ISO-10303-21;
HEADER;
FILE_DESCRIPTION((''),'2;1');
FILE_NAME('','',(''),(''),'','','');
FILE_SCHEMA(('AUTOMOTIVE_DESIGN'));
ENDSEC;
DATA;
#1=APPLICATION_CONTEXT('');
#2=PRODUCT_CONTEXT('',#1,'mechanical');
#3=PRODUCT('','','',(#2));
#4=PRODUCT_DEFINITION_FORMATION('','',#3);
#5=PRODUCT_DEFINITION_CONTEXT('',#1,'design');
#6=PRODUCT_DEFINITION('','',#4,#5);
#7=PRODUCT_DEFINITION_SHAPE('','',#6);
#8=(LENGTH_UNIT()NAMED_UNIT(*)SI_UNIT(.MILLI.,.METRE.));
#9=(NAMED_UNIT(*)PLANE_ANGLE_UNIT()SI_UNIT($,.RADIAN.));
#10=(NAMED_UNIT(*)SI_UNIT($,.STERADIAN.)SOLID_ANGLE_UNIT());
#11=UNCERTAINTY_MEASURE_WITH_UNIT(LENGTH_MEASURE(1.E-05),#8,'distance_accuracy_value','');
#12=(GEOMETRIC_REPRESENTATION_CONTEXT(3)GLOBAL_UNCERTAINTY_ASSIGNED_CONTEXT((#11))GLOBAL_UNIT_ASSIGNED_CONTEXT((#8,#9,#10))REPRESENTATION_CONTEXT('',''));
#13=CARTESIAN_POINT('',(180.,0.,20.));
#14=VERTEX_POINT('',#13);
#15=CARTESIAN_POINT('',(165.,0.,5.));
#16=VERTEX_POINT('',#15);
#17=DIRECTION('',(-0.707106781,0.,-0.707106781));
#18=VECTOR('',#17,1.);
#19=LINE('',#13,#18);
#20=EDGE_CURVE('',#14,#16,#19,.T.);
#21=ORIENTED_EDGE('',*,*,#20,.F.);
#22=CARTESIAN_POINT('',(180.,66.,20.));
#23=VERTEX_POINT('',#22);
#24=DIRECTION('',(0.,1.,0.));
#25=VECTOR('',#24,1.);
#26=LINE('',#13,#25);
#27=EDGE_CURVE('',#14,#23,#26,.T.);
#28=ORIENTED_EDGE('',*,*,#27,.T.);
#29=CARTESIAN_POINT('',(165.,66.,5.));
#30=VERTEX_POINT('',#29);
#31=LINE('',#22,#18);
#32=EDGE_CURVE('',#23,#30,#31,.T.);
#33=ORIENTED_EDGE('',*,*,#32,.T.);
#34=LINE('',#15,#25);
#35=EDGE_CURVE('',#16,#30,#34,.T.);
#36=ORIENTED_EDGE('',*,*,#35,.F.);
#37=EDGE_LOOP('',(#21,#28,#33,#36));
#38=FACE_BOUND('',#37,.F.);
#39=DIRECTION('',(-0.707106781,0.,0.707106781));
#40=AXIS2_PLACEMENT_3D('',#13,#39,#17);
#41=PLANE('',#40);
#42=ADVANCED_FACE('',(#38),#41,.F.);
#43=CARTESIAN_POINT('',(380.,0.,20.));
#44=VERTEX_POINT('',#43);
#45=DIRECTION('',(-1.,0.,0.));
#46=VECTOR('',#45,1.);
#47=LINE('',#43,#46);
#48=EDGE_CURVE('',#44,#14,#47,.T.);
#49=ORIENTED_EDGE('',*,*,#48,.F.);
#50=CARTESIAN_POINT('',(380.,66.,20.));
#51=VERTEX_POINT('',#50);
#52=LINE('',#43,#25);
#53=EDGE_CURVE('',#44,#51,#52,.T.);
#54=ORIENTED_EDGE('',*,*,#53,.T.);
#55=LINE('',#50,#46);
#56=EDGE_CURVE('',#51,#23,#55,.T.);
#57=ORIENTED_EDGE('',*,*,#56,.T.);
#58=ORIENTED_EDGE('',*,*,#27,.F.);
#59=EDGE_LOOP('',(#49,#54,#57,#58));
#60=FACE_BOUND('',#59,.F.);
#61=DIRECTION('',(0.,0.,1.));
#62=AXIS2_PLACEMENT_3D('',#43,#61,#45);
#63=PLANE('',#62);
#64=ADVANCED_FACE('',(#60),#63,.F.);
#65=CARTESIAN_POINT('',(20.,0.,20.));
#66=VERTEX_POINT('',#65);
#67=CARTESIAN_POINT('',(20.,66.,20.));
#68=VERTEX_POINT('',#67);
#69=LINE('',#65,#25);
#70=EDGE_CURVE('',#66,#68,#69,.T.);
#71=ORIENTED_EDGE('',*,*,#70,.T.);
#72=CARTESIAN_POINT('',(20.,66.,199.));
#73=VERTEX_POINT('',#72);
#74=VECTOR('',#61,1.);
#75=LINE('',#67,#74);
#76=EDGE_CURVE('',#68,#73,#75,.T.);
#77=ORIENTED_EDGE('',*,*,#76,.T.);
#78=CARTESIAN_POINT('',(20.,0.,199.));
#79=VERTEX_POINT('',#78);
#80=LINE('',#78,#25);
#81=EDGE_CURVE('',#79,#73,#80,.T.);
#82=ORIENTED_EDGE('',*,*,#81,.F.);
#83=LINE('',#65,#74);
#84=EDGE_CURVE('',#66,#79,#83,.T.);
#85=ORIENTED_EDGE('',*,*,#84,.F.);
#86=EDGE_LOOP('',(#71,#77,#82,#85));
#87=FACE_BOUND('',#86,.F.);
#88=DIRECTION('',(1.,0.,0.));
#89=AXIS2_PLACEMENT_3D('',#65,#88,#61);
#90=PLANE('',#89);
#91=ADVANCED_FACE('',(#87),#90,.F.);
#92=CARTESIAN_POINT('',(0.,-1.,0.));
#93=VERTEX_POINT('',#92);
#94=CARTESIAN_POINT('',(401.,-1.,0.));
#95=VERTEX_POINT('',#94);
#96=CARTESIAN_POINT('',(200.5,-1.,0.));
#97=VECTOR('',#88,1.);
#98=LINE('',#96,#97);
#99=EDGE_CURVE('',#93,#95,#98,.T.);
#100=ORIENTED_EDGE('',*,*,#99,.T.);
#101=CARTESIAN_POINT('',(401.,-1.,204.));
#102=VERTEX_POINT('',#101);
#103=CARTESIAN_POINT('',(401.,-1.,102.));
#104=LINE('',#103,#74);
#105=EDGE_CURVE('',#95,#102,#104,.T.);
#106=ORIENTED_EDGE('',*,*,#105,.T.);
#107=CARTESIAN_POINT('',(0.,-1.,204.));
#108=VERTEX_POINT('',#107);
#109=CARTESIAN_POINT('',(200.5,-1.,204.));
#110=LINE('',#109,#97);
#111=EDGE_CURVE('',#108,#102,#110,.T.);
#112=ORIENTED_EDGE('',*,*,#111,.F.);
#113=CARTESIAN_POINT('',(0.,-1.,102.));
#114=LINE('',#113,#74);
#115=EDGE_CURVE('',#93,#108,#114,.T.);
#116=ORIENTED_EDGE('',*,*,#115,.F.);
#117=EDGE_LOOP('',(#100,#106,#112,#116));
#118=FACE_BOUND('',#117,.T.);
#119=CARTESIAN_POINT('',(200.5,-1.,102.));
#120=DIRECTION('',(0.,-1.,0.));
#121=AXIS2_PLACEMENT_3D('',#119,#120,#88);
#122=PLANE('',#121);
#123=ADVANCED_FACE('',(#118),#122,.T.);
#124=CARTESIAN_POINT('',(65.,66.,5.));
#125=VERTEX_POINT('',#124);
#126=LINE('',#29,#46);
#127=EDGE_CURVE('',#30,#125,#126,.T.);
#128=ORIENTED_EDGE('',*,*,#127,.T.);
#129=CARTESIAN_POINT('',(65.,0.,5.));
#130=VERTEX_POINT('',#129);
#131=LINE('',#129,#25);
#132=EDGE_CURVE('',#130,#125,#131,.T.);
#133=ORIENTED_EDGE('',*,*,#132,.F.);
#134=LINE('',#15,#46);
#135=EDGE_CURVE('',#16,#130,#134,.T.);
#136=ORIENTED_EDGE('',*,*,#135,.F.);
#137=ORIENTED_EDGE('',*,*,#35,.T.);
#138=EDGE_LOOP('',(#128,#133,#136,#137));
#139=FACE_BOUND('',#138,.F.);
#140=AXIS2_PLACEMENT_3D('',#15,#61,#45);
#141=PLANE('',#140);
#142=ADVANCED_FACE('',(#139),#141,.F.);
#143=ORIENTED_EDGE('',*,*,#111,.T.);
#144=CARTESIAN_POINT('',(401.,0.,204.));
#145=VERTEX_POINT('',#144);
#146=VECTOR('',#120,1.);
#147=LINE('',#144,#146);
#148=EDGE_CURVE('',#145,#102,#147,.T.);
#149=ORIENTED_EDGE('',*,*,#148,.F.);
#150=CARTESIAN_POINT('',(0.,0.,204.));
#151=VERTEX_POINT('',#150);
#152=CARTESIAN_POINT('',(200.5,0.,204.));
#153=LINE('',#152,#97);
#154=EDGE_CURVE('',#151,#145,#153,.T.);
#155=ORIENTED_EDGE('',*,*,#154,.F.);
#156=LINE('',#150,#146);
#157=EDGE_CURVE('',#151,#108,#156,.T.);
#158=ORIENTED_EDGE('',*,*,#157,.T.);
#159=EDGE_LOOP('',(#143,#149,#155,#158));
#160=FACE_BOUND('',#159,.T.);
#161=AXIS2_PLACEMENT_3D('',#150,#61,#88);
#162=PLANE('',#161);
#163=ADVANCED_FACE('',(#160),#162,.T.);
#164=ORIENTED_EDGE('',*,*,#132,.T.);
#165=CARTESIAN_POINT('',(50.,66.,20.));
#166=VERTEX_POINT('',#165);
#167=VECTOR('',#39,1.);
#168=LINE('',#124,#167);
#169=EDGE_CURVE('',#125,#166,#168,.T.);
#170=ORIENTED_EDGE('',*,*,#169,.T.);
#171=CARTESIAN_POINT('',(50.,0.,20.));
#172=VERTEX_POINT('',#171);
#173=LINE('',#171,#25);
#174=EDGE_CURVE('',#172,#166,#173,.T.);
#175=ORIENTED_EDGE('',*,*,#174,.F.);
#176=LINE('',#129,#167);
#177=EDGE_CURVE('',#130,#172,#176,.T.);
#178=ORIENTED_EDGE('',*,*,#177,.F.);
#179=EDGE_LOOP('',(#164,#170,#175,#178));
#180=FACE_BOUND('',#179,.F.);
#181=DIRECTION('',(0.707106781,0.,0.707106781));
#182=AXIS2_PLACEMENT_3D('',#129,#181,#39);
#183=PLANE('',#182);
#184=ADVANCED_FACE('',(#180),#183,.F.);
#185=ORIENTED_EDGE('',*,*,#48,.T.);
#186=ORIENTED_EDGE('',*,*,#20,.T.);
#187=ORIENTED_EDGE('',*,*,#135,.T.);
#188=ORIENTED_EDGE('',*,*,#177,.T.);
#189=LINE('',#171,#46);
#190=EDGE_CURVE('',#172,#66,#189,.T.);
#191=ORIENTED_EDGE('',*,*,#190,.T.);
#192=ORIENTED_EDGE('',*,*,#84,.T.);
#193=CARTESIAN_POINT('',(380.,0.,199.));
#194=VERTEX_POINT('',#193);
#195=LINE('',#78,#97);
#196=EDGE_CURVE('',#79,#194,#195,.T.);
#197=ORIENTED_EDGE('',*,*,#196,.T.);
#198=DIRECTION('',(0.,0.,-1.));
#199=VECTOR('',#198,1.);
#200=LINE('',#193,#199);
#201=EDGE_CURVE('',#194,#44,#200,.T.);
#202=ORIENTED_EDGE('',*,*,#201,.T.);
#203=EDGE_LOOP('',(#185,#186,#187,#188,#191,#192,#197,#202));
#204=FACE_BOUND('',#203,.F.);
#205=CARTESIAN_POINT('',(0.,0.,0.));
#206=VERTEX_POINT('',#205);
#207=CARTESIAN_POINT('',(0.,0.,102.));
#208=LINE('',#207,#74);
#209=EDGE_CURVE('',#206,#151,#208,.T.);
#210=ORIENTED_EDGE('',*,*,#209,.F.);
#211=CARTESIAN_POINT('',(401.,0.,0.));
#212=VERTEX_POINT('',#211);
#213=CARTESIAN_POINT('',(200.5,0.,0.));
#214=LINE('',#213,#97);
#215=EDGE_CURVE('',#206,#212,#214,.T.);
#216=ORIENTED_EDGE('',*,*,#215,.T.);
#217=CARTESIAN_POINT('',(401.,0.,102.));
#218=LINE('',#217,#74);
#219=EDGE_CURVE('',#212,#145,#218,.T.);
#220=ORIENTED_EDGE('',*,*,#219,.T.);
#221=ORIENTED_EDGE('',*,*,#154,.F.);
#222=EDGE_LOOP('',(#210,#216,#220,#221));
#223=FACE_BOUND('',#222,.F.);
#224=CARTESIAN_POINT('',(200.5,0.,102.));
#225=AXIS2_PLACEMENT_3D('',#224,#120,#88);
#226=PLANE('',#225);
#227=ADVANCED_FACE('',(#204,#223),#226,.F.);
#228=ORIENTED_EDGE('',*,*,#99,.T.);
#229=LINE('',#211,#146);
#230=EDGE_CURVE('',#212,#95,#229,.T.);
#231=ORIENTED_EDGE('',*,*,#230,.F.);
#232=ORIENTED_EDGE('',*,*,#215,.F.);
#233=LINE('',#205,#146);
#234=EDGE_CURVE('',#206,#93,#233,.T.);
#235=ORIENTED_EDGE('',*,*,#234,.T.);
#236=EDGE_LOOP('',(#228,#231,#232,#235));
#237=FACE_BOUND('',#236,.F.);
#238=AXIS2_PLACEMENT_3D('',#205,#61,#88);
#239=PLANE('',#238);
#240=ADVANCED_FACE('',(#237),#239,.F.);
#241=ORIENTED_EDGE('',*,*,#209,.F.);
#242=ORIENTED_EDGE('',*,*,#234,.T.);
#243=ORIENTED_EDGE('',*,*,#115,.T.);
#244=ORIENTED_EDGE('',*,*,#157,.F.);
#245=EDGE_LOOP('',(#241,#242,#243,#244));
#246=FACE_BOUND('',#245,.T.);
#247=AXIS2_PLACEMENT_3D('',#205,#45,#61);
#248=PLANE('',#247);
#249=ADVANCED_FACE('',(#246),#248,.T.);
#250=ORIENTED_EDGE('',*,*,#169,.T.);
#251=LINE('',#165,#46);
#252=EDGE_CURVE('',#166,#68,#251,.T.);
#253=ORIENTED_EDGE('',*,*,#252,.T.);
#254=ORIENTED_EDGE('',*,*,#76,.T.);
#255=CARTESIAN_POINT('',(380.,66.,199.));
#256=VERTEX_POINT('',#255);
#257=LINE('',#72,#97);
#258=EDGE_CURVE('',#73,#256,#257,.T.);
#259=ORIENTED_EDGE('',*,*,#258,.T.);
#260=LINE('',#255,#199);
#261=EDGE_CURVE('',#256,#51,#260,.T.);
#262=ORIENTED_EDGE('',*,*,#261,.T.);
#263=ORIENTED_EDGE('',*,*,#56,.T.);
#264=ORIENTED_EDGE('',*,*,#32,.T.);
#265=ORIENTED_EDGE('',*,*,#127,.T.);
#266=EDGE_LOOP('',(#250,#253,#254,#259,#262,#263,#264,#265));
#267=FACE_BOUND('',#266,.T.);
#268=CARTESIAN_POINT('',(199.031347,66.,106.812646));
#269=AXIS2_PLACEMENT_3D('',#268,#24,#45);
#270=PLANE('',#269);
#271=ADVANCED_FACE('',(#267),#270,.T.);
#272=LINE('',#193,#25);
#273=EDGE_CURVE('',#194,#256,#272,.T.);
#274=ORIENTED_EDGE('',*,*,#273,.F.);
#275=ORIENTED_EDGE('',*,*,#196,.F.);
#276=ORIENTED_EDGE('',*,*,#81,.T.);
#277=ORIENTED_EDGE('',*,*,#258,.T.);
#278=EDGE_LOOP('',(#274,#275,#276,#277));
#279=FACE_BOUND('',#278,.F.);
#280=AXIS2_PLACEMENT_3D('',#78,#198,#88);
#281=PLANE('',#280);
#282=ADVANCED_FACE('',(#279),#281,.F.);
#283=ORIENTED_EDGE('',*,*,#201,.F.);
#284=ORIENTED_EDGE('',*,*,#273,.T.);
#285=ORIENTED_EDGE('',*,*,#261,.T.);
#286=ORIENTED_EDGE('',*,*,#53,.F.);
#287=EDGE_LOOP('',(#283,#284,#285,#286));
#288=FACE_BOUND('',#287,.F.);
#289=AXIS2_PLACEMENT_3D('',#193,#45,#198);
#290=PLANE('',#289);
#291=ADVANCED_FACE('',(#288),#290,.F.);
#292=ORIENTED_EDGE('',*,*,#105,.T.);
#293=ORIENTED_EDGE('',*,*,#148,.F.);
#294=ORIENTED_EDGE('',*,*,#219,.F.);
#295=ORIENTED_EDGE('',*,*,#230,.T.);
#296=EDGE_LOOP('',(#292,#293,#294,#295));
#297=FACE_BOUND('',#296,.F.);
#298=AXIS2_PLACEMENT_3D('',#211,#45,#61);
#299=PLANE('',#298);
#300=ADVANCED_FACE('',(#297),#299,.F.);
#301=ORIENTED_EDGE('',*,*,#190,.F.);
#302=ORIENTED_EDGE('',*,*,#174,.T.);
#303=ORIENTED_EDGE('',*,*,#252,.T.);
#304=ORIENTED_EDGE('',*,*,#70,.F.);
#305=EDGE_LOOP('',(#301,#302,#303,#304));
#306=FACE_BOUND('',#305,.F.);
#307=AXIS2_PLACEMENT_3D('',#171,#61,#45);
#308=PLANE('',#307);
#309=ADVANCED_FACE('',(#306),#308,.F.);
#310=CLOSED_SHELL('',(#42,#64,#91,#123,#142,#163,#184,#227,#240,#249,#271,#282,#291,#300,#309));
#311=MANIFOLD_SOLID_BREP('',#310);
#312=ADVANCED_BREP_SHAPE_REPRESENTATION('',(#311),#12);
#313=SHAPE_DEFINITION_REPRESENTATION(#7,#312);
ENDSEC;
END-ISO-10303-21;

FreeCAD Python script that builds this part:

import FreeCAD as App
import Part
import Sketcher
from FreeCAD import Vector
Q = App.Units.Quantity

doc = App.newDocument("Part")
body = doc.addObject("PartDesign::Body", "Body")

sketch1 = body.newObject("Sketcher::SketchObject", "Sketch")
sketch1.AttachmentSupport = (doc.getObject("XZ_Plane"), [""])
sketch1.MapMode = "FlatFace"
sketch1.addGeometry(Part.LineSegment(Vector(0, 204, 0), Vector(0, 0, 0)), False)
sketch1.addGeometry(Part.LineSegment(Vector(0, 0, 0), Vector(401, 0, 0)), False)
sketch1.addGeometry(Part.LineSegment(Vector(401, 0, 0), Vector(401, 204, 0)), False)
sketch1.addGeometry(Part.LineSegment(Vector(401, 204, 0), Vector(0, 204, 0)), False)
sketch1.addConstraint(Sketcher.Constraint("Coincident", 0, 2, 1, 1))
sketch1.addConstraint(Sketcher.Constraint("Coincident", 1, 2, 2, 1))
sketch1.addConstraint(Sketcher.Constraint("Coincident", 2, 2, 3, 1))
sketch1.addConstraint(Sketcher.Constraint("Coincident", 3, 2, 0, 1))
sketch1.addConstraint(Sketcher.Constraint("Vertical", 0))
sketch1.addConstraint(Sketcher.Constraint("Horizontal", 1))
sketch1.addConstraint(Sketcher.Constraint("Vertical", 2))
sketch1.addConstraint(Sketcher.Constraint("Horizontal", 3))
sketch1.addConstraint(Sketcher.Constraint("Coincident", 0, 2, -1, 1))
sketch1.addConstraint(Sketcher.Constraint("DistanceX", 1, 1, 1, 2, Q("401 mm")))
sketch1.addConstraint(Sketcher.Constraint("DistanceY", 0, 2, 0, 1, Q("204 mm")))
pad1 = body.newObject("PartDesign::Pad", "Pad")
pad1.Profile = sketch1
pad1.Length = 1

sketch2 = body.newObject("Sketcher::SketchObject", "Sketch001")
sketch2.AttachmentSupport = (doc.getObject("XZ_Plane"), [""])
sketch2.MapMode = "FlatFace"
sketch2.addGeometry(Part.LineSegment(Vector(20, 20, 0), Vector(20, 199, 0)), False)
sketch2.addGeometry(Part.LineSegment(Vector(20, 199, 0), Vector(380, 199, 0)), False)
sketch2.addGeometry(Part.LineSegment(Vector(380, 199, 0), Vector(380, 20, 0)), False)
sketch2.addGeometry(Part.LineSegment(Vector(380, 20, 0), Vector(180, 20, 0)), False)
sketch2.addGeometry(Part.LineSegment(Vector(180, 20, 0), Vector(165, 5, 0)), False)
sketch2.addGeometry(Part.LineSegment(Vector(165, 5, 0), Vector(65, 5, 0)), False)
sketch2.addGeometry(Part.LineSegment(Vector(65, 5, 0), Vector(50, 20, 0)), False)
sketch2.addGeometry(Part.LineSegment(Vector(50, 20, 0), Vector(20, 20, 0)), False)
sketch2.addConstraint(Sketcher.Constraint("Coincident", 0, 2, 1, 1))
sketch2.addConstraint(Sketcher.Constraint("Coincident", 1, 2, 2, 1))
sketch2.addConstraint(Sketcher.Constraint("Coincident", 2, 2, 3, 1))
sketch2.addConstraint(Sketcher.Constraint("Coincident", 3, 2, 4, 1))
sketch2.addConstraint(Sketcher.Constraint("Coincident", 4, 2, 5, 1))
sketch2.addConstraint(Sketcher.Constraint("Coincident", 5, 2, 6, 1))
sketch2.addConstraint(Sketcher.Constraint("Coincident", 6, 2, 7, 1))
sketch2.addConstraint(Sketcher.Constraint("Coincident", 7, 2, 0, 1))
sketch2.addConstraint(Sketcher.Constraint("Vertical", 0))
sketch2.addConstraint(Sketcher.Constraint("Horizontal", 1))
sketch2.addConstraint(Sketcher.Constraint("Vertical", 2))
sketch2.addConstraint(Sketcher.Constraint("Horizontal", 3))
sketch2.addConstraint(Sketcher.Constraint("Horizontal", 5))
sketch2.addConstraint(Sketcher.Constraint("Horizontal", 7))
sketch2.addConstraint(Sketcher.Constraint("Perpendicular", 4, 6))
sketch2.addConstraint(Sketcher.Constraint("Horizontal", 3, 2, 6, 2))
sketch2.addConstraint(Sketcher.Constraint("Equal", 4, 6))
sketch2.addConstraint(Sketcher.Constraint("DistanceX", 1, 1, 1, 2, Q("360 mm")))
sketch2.addConstraint(Sketcher.Constraint("DistanceX", 3, 2, 3, 1, Q("200 mm")))
sketch2.addConstraint(Sketcher.Constraint("DistanceX", 5, 2, 5, 1, Q("100 mm")))
sketch2.addConstraint(Sketcher.Constraint("DistanceX", 7, 2, 7, 1, Q("30 mm")))
sketch2.addConstraint(Sketcher.Constraint("DistanceY", 0, 1, 0, 2, Q("179 mm")))
sketch2.addConstraint(Sketcher.Constraint("DistanceX", -1, 1, 0, 2, Q("20 mm")))
sketch2.addConstraint(Sketcher.Constraint("DistanceY", -1, 1, 0, 2, Q("199 mm")))
pad2 = body.newObject("PartDesign::Pad", "Pad001")
pad2.Profile = sketch2
pad2.Length = 66
pad2.Reversed = True

doc.recompute()
